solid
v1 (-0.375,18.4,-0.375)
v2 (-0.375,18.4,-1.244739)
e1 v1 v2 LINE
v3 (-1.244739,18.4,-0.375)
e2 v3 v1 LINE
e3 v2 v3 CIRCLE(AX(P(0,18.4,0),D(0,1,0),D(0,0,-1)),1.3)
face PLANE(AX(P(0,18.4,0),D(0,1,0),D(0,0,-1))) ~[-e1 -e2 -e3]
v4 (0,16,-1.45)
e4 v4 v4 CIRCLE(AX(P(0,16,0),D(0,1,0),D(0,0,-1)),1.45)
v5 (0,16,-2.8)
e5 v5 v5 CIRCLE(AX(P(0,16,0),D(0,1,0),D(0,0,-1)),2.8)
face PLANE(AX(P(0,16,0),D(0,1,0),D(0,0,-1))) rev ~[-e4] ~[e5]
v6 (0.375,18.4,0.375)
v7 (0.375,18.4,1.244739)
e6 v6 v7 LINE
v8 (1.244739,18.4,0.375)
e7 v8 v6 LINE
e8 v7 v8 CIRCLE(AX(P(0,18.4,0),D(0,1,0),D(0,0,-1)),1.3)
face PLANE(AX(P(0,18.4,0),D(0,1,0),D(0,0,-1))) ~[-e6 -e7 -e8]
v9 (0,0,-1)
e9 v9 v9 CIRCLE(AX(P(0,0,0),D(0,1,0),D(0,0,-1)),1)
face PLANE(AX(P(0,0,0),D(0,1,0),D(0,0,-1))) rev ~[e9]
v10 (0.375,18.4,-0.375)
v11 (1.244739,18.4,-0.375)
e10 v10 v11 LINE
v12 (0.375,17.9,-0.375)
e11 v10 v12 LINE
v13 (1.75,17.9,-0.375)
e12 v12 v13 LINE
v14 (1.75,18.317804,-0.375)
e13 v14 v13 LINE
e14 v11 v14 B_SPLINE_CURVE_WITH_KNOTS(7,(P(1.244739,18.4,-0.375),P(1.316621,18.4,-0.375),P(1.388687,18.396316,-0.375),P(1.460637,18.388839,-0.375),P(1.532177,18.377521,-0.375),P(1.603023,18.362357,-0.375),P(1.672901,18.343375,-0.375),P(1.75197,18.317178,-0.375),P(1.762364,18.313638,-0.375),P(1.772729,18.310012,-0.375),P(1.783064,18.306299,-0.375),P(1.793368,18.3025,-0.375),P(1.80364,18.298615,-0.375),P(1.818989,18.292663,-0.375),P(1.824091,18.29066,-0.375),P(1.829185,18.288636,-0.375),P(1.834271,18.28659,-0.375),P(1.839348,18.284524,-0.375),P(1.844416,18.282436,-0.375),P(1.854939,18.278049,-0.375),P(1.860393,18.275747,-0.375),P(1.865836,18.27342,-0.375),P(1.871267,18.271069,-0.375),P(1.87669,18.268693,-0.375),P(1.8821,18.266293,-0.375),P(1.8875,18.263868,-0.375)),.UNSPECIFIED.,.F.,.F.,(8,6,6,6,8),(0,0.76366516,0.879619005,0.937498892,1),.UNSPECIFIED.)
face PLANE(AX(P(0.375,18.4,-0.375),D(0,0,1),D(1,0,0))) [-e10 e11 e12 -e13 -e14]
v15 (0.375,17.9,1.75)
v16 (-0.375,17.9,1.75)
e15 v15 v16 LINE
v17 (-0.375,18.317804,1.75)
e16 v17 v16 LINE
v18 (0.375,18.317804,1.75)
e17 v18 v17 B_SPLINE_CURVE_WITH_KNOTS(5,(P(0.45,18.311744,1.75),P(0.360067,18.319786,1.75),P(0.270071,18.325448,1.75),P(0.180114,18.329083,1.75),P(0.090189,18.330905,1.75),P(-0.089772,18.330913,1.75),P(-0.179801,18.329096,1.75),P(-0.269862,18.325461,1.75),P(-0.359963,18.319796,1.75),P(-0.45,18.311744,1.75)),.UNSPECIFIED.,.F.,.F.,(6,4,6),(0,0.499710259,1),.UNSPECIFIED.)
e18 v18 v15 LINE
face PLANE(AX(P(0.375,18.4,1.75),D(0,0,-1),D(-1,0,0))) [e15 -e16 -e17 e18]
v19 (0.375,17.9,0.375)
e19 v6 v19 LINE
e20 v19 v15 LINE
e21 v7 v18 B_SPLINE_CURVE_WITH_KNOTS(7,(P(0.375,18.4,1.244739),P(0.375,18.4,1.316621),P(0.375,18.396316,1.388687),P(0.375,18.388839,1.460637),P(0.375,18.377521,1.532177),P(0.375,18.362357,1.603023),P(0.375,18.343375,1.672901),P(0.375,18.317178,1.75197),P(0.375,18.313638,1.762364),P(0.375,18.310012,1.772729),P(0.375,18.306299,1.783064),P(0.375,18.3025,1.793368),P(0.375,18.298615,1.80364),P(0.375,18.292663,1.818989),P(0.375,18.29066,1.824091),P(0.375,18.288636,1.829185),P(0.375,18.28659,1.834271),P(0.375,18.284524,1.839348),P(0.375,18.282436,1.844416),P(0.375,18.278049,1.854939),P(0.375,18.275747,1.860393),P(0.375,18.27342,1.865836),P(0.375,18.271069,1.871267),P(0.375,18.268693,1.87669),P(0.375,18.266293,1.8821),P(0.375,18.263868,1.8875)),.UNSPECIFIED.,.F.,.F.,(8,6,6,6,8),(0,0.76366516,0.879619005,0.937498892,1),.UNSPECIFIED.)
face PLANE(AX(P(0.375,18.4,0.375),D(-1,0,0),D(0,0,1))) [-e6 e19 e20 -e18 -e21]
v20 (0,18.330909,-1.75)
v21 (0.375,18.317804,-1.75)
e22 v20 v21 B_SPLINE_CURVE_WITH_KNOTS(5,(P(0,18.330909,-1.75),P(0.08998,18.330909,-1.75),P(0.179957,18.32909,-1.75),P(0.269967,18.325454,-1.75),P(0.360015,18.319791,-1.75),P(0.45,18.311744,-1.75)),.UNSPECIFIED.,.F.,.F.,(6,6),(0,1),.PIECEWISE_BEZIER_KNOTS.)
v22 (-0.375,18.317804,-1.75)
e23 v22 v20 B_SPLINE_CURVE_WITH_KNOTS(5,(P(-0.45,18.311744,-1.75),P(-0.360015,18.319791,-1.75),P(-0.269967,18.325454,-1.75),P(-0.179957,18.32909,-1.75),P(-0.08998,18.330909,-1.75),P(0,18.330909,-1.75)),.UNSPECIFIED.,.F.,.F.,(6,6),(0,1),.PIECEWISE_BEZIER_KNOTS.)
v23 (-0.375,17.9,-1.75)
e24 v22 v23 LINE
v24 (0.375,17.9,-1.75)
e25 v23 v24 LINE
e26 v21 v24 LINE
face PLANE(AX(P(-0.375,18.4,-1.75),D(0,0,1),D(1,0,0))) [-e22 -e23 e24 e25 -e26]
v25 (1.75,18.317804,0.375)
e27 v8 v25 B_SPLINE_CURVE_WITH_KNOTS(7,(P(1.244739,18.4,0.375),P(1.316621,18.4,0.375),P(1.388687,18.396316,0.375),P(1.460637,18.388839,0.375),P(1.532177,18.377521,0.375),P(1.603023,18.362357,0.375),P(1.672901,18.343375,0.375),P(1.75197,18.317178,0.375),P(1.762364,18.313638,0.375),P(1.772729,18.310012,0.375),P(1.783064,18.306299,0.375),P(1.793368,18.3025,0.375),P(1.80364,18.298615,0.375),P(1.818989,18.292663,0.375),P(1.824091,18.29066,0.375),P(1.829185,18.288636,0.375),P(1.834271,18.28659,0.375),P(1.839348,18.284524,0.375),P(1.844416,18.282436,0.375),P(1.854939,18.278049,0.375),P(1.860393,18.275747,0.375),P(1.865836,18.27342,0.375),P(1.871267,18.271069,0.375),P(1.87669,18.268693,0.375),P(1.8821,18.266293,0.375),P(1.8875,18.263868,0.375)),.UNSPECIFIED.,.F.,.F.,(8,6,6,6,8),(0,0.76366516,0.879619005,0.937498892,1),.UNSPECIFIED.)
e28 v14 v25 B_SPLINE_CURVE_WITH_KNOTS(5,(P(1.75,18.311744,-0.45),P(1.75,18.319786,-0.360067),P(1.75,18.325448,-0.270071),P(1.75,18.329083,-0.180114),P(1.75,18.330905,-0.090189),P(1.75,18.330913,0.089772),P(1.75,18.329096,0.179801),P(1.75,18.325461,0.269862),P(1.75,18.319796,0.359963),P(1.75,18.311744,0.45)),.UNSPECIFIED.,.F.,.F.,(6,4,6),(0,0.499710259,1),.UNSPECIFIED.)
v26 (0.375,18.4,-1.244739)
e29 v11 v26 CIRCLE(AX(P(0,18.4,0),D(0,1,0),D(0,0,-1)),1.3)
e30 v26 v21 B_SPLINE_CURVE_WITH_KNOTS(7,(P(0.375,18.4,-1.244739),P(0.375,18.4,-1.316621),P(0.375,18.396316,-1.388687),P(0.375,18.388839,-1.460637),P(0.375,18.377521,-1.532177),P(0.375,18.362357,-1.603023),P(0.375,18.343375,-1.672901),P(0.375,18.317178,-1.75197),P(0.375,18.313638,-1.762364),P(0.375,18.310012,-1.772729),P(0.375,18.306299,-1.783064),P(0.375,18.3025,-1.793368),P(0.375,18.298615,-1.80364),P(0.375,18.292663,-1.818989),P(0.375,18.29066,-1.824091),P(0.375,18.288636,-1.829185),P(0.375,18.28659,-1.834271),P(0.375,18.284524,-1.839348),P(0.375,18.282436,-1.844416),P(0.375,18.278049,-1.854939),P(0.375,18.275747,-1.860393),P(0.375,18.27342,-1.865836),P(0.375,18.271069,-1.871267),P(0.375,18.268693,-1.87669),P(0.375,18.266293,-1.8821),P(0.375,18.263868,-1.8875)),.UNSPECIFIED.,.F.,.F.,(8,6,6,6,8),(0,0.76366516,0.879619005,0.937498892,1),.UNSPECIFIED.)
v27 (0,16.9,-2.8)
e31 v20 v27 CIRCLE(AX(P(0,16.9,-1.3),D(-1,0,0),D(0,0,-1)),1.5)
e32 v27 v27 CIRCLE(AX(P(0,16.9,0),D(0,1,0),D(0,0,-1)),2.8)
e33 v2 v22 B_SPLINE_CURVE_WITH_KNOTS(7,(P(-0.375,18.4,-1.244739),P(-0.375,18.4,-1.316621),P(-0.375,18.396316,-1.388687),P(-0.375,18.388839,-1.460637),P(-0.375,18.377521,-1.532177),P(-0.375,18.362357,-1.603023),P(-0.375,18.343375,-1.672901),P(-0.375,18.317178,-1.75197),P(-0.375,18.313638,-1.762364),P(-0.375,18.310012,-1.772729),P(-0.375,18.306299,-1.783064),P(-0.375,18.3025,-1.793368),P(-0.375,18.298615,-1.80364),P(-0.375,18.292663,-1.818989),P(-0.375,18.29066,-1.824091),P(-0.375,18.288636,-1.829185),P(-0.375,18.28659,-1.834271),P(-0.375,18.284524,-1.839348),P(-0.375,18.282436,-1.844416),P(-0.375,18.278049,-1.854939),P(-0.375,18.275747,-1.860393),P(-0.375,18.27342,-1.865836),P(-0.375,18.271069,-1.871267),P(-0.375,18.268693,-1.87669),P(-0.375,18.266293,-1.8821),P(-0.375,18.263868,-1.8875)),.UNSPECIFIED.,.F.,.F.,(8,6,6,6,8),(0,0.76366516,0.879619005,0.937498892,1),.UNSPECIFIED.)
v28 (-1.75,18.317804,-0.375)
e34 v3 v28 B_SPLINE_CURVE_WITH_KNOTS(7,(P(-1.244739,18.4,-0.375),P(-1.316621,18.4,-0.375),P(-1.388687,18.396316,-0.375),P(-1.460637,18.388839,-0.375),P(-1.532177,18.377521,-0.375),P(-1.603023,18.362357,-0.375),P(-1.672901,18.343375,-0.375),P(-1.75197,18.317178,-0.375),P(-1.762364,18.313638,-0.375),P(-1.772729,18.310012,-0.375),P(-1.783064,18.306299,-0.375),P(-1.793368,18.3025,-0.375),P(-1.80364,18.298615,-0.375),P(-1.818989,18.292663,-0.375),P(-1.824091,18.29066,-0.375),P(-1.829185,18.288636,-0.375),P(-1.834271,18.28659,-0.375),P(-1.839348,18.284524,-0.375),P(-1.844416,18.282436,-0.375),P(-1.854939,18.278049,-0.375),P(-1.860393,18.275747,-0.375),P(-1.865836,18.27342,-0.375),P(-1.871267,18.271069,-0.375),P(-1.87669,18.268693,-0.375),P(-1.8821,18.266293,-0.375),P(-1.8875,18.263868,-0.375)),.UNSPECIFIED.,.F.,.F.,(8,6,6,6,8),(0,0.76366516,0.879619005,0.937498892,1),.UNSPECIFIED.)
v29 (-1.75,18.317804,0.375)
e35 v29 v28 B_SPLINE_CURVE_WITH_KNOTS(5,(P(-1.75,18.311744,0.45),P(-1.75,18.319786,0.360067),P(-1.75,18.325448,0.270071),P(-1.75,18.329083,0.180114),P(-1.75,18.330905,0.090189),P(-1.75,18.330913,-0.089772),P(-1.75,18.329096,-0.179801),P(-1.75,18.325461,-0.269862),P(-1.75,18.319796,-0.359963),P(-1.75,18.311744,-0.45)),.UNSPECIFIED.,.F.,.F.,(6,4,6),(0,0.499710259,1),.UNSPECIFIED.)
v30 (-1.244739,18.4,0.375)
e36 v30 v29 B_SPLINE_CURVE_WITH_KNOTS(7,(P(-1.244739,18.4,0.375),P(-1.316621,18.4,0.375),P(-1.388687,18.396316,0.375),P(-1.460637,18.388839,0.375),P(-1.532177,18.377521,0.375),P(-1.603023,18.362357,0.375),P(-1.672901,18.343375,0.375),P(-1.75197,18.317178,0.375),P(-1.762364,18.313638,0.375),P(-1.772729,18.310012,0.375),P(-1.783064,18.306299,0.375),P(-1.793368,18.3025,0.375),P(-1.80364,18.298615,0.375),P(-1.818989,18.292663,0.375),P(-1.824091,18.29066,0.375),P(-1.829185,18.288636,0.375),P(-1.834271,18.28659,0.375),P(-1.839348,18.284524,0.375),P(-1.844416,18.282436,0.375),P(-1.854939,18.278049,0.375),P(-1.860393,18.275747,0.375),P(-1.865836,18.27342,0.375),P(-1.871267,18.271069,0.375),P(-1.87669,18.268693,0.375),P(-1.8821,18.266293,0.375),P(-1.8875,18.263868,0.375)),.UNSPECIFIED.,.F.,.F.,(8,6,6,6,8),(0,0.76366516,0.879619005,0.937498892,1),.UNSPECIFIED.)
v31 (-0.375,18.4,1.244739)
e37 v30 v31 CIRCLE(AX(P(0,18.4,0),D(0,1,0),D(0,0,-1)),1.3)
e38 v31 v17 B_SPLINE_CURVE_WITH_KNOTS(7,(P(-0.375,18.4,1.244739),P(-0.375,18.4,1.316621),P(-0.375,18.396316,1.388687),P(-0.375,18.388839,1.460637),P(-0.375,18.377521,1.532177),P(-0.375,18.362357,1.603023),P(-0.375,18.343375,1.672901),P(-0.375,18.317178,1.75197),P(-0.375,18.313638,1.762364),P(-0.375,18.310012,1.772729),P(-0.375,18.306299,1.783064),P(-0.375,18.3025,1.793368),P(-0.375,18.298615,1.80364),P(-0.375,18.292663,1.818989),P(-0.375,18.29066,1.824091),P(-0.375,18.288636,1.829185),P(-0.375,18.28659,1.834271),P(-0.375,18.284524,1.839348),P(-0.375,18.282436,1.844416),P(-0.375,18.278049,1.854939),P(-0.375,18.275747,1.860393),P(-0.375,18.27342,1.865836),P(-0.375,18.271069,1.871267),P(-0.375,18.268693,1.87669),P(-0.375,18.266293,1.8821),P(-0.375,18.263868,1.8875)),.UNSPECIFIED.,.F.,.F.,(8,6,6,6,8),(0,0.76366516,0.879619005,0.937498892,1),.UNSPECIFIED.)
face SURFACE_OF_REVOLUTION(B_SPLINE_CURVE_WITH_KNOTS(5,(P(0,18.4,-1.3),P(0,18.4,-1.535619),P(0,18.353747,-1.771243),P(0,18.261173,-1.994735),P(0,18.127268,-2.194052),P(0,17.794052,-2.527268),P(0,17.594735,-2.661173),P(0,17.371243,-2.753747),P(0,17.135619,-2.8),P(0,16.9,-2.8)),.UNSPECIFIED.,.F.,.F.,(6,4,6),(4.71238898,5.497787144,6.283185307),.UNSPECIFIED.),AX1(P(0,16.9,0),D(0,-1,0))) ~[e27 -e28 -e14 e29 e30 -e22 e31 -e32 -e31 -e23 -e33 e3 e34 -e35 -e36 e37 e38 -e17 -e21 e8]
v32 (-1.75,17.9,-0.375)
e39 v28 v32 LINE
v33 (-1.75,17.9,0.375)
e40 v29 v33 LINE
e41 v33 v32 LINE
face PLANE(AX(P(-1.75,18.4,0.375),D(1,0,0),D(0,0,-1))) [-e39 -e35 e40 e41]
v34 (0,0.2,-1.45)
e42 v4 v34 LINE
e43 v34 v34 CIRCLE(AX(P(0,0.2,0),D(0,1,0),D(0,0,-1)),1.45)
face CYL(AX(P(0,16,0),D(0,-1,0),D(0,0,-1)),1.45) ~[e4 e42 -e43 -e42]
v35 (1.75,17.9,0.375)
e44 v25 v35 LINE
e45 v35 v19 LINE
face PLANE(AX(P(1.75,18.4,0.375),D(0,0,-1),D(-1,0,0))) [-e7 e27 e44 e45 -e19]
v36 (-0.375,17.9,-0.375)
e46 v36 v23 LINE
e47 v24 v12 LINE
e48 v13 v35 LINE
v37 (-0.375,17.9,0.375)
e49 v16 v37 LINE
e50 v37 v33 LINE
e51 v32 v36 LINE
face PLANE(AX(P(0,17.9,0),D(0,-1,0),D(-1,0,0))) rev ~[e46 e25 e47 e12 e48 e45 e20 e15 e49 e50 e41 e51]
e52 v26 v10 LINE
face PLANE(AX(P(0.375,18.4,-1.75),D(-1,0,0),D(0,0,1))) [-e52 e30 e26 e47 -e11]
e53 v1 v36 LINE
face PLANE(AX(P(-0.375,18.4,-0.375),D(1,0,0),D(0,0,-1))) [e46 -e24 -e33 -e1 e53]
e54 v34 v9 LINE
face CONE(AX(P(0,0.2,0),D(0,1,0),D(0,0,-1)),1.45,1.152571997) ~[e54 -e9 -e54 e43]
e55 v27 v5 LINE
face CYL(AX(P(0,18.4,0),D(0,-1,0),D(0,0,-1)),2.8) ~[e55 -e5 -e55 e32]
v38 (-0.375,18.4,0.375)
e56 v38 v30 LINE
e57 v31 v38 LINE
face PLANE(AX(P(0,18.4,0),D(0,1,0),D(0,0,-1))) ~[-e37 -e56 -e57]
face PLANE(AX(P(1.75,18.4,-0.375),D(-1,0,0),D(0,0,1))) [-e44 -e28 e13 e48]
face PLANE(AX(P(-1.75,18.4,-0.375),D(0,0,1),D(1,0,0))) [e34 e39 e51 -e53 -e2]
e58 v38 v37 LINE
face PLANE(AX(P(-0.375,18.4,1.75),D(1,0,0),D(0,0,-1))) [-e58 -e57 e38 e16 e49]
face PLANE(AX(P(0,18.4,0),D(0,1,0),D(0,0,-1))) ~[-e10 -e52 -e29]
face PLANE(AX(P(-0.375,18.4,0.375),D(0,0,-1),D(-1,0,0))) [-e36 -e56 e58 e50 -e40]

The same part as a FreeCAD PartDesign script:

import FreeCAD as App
import Part
import Sketcher

V = App.Vector
Q = App.Units.Quantity


def edges_at(feature, points):
    """Names of the edges that pass closest to the given points."""
    edges = feature.Shape.Edges
    near = lambda p: min(range(len(edges)), key=lambda i: edges[i].distToShape(Part.Vertex(*p))[0])
    return sorted({f"Edge{near(p) + 1}" for p in points})

doc = App.newDocument("Part")
body = doc.addObject("PartDesign::Body", "Body")

# Sketch on XY plane
sketch1 = doc.addObject("Sketcher::SketchObject", "Sketch")
body.addObject(sketch1)
sketch1.AttachmentSupport = (doc.XY_Plane, [""])
sketch1.MapMode = "FlatFace"
sketch1.addGeometry(Part.LineSegment(V(2.8, 18.4, 0), V(0, 18.4, 0)), False)
sketch1.addGeometry(Part.LineSegment(V(0, 18.4, 0), V(0, 0, 0)), False)
sketch1.addGeometry(Part.LineSegment(V(0, 0, 0), V(1, 0, 0)), False)
sketch1.addGeometry(Part.LineSegment(V(1, 0, 0), V(1.45, 0.2, 0)), False)
sketch1.addGeometry(Part.LineSegment(V(1.45, 0.2, 0), V(1.45, 16, 0)), False)
sketch1.addGeometry(Part.LineSegment(V(1.45, 16, 0), V(2.8, 16, 0)), False)
sketch1.addGeometry(Part.LineSegment(V(2.8, 16, 0), V(2.8, 18.4, 0)), False)
sketch1.addConstraint(Sketcher.Constraint("Coincident", 0, 2, 1, 1))
sketch1.addConstraint(Sketcher.Constraint("Coincident", 1, 2, 2, 1))
sketch1.addConstraint(Sketcher.Constraint("Coincident", 2, 2, 3, 1))
sketch1.addConstraint(Sketcher.Constraint("Coincident", 3, 2, 4, 1))
sketch1.addConstraint(Sketcher.Constraint("Coincident", 4, 2, 5, 1))
sketch1.addConstraint(Sketcher.Constraint("Coincident", 5, 2, 6, 1))
sketch1.addConstraint(Sketcher.Constraint("Coincident", 6, 2, 0, 1))
sketch1.addConstraint(Sketcher.Constraint("Horizontal", 0))
sketch1.addConstraint(Sketcher.Constraint("Vertical", 1))
sketch1.addConstraint(Sketcher.Constraint("Horizontal", 2))
sketch1.addConstraint(Sketcher.Constraint("Vertical", 4))
sketch1.addConstraint(Sketcher.Constraint("Horizontal", 5))
sketch1.addConstraint(Sketcher.Constraint("Vertical", 6))
sketch1.addConstraint(Sketcher.Constraint("Coincident", 1, 2, -1, 1))
sketch1.addConstraint(Sketcher.Constraint("DistanceX", 2, 1, 2, 2, Q("1 mm")))
sketch1.addConstraint(Sketcher.Constraint("DistanceX", 0, 2, 0, 1, Q("2.8 mm")))
sketch1.addConstraint(Sketcher.Constraint("DistanceY", 1, 2, 1, 1, Q("18.4 mm")))
sketch1.addConstraint(Sketcher.Constraint("DistanceY", 4, 1, 4, 2, Q("15.8 mm")))
sketch1.addConstraint(Sketcher.Constraint("DistanceY", 6, 1, 6, 2, Q("2.4 mm")))
sketch1.addConstraint(Sketcher.Constraint("DistanceX", 5, 1, 5, 2, Q("1.35 mm")))
revolution = doc.addObject("PartDesign::Revolution", "Revolution")
body.addObject(revolution)
revolution.Profile = sketch1
revolution.ReferenceAxis = (sketch1, ["V_Axis"])
revolution.Angle = 360
doc.recompute()

fillet = doc.addObject("PartDesign::Fillet", "Fillet")
body.addObject(fillet)
fillet.Base = (revolution, edges_at(revolution, [(0, 18.4, 2.8)]))
fillet.Radius = 1.5

# Sketch on XZ plane
sketch2 = doc.addObject("Sketcher::SketchObject", "Sketch001")
body.addObject(sketch2)
sketch2.AttachmentSupport = (doc.XZ_Plane, [""])
sketch2.MapMode = "FlatFace"
sketch2.AttachmentOffset = App.Placement(V(0, 0, -18.4), App.Rotation())
sketch2.addGeometry(Part.LineSegment(V(1.8, 0.4, 0), V(1.8, -0.4, 0)), False)
sketch2.addGeometry(Part.LineSegment(V(1.8, -0.4, 0), V(0.4, -0.4, 0)), False)
sketch2.addGeometry(Part.LineSegment(V(0.4, -0.4, 0), V(0.4, -1.8, 0)), False)
sketch2.addGeometry(Part.LineSegment(V(0.4, -1.8, 0), V(-0.4, -1.8, 0)), False)
sketch2.addGeometry(Part.LineSegment(V(-0.4, -1.8, 0), V(-0.4, -0.4, 0)), False)
sketch2.addGeometry(Part.LineSegment(V(-0.4, -0.4, 0), V(-1.8, -0.4, 0)), False)
sketch2.addGeometry(Part.LineSegment(V(-1.8, -0.4, 0), V(-1.8, 0.4, 0)), False)
sketch2.addGeometry(Part.LineSegment(V(-1.8, 0.4, 0), V(-0.4, 0.4, 0)), False)
sketch2.addGeometry(Part.LineSegment(V(-0.4, 0.4, 0), V(-0.4, 1.8, 0)), False)
sketch2.addGeometry(Part.LineSegment(V(-0.4, 1.8, 0), V(0.4, 1.8, 0)), False)
sketch2.addGeometry(Part.LineSegment(V(0.4, 1.8, 0), V(0.4, 0.4, 0)), False)
sketch2.addGeometry(Part.LineSegment(V(0.4, 0.4, 0), V(1.8, 0.4, 0)), False)
sketch2.addConstraint(Sketcher.Constraint("Coincident", 0, 2, 1, 1))
sketch2.addConstraint(Sketcher.Constraint("Coincident", 1, 2, 2, 1))
sketch2.addConstraint(Sketcher.Constraint("Coincident", 2, 2, 3, 1))
sketch2.addConstraint(Sketcher.Constraint("Coincident", 3, 2, 4, 1))
sketch2.addConstraint(Sketcher.Constraint("Coincident", 4, 2, 5, 1))
sketch2.addConstraint(Sketcher.Constraint("Coincident", 5, 2, 6, 1))
sketch2.addConstraint(Sketcher.Constraint("Coincident", 6, 2, 7, 1))
sketch2.addConstraint(Sketcher.Constraint("Coincident", 7, 2, 8, 1))
sketch2.addConstraint(Sketcher.Constraint("Coincident", 8, 2, 9, 1))
sketch2.addConstraint(Sketcher.Constraint("Coincident", 9, 2, 10, 1))
sketch2.addConstraint(Sketcher.Constraint("Coincident", 10, 2, 11, 1))
sketch2.addConstraint(Sketcher.Constraint("Coincident", 11, 2, 0, 1))
sketch2.addConstraint(Sketcher.Constraint("Vertical", 0))
sketch2.addConstraint(Sketcher.Constraint("Horizontal", 1))
sketch2.addConstraint(Sketcher.Constraint("Vertical", 2))
sketch2.addConstraint(Sketcher.Constraint("Horizontal", 3))
sketch2.addConstraint(Sketcher.Constraint("Vertical", 4))
sketch2.addConstraint(Sketcher.Constraint("Horizontal", 5))
sketch2.addConstraint(Sketcher.Constraint("Vertical", 6))
sketch2.addConstraint(Sketcher.Constraint("Horizontal", 7))
sketch2.addConstraint(Sketcher.Constraint("Vertical", 8))
sketch2.addConstraint(Sketcher.Constraint("Horizontal", 9))
sketch2.addConstraint(Sketcher.Constraint("Vertical", 10))
sketch2.addConstraint(Sketcher.Constraint("Horizontal", 11))
sketch2.addConstraint(Sketcher.Constraint("Symmetric", 0, 2, 6, 2, -1, 1))
sketch2.addConstraint(Sketcher.Constraint("Symmetric", 2, 2, 8, 2, -1, 1))
sketch2.addConstraint(Sketcher.Constraint("Symmetric", 4, 2, 10, 2, -1, 1))
sketch2.addConstraint(Sketcher.Constraint("Symmetric", 1, 2, 4, 2, -2))
sketch2.addConstraint(Sketcher.Constraint("Equal", 9, 0))
sketch2.addConstraint(Sketcher.Constraint("Equal", 11, 2))
sketch2.addConstraint(Sketcher.Constraint("DistanceX", 3, 2, 3, 1, Q("0.75 mm")))
sketch2.addConstraint(Sketcher.Constraint("DistanceX", 5, 2, 0, 2, Q("3.5 mm")))
pocket1 = doc.addObject("PartDesign::Pocket", "Pocket")
body.addObject(pocket1)
pocket1.Profile = sketch2
pocket1.Length = 0.5
pocket1.Reversed = True

doc.recompute()
